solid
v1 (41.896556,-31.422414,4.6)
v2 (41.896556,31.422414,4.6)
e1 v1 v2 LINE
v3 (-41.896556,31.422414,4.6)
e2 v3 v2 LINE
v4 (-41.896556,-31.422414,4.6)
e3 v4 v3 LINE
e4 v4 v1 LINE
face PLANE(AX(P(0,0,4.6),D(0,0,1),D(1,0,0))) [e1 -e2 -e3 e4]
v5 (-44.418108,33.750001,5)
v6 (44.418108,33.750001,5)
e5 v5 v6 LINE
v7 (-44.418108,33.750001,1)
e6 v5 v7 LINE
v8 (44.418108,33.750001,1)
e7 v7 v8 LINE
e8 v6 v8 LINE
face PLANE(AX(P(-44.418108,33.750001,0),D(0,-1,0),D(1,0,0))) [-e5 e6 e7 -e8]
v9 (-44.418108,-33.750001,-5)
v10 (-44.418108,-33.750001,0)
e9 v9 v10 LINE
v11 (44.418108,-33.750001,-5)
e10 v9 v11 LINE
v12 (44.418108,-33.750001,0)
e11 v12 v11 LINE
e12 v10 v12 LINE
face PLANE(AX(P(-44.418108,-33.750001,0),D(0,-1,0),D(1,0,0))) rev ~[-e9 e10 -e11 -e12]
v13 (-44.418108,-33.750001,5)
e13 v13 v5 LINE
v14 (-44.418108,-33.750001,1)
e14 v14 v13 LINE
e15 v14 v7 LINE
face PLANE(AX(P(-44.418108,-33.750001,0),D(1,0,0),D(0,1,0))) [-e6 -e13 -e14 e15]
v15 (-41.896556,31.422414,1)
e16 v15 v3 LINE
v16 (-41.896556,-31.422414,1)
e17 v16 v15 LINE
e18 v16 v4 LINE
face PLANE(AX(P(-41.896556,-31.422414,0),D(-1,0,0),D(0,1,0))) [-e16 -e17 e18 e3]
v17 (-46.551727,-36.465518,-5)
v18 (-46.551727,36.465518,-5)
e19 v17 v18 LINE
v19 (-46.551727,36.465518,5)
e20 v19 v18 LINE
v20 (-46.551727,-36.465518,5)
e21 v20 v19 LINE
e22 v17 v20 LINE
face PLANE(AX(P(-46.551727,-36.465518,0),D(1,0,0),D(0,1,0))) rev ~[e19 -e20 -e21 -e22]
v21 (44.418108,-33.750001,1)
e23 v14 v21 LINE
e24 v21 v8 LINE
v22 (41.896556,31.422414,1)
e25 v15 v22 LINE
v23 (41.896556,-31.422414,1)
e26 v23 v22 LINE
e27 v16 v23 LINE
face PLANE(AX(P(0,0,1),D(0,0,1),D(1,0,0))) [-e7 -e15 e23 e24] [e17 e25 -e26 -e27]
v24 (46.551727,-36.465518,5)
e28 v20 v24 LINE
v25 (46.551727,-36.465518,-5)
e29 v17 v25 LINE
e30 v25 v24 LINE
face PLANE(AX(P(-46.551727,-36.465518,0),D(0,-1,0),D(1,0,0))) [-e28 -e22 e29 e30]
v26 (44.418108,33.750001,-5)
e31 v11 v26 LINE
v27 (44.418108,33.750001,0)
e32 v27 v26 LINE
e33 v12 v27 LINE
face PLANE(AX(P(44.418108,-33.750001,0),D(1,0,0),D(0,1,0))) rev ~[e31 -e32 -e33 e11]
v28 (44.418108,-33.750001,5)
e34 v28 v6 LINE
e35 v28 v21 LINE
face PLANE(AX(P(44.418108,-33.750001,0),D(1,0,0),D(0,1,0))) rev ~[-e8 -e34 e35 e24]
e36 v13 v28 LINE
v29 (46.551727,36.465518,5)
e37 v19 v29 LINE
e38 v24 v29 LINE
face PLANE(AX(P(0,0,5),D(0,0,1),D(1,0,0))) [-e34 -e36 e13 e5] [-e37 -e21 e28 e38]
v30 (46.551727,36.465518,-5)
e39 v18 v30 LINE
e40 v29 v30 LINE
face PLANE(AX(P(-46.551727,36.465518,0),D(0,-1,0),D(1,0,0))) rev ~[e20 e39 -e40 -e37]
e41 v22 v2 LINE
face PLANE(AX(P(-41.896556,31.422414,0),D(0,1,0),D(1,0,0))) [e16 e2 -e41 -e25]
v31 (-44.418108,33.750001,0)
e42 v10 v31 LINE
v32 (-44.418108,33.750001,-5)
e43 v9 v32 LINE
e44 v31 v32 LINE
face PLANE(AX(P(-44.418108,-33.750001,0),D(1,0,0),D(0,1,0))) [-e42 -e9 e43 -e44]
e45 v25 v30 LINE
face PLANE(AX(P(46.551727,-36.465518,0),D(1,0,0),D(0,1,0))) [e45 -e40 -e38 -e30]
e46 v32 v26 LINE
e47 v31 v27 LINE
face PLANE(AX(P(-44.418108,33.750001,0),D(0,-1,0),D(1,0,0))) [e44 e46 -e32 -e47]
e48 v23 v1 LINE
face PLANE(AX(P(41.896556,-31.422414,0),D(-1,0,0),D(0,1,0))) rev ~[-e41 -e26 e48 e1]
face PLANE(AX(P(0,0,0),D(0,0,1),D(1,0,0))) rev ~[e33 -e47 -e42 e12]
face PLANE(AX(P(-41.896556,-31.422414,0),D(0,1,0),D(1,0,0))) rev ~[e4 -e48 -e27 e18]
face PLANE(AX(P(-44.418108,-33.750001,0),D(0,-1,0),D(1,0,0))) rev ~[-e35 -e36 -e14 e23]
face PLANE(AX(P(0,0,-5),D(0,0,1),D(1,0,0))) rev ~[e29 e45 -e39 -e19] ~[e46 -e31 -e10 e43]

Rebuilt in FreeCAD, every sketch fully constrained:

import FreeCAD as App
import Part
import Sketcher
from FreeCAD import Vector


def add_polygon(sketch, points):
    """Adds a closed chain of lines whose ends are joined by coincident constraints."""
    first, n = sketch.GeometryCount, len(points)
    for a, b in zip(points, points[1:] + points[:1]):
        sketch.addGeometry(Part.LineSegment(App.Vector(*a, 0), App.Vector(*b, 0)), False)
    for i in range(n):
        sketch.addConstraint(Sketcher.Constraint("Coincident", first + i, 2, first + (i + 1) % n, 1))

doc = App.newDocument("Part")
params = doc.addObject("Spreadsheet::Sheet", "Params")
for row, (alias, value) in enumerate([
    ("sketch1_height", "67.500002 mm"),
    ("pad1_length", "10 mm"),
    ("sketch2_height", "67.500002 mm"),
    ("pad2_length", "1 mm"),
    ("pad3_length", "4.6 mm"),
], start=1):
    params.set(f"A{row}", alias)
    params.set(f"B{row}", "=" + value)
    params.setAlias(f"B{row}", alias)

body = doc.addObject("PartDesign::Body", "Body")

# Sketch on XY plane
sketch1 = body.newObject("Sketcher::SketchObject", "Sketch")
sketch1.AttachmentSupport = (doc.getObject("XY_Plane"), [""])
sketch1.MapMode = "FlatFace"
add_polygon(sketch1, [(-47, 36), (-47, -36), (47, -36), (47, 36)])  # lines 0-3
add_polygon(sketch1, [(44, -34), (-44, -34), (-44, 34), (44, 34)])  # lines 4-7
sketch1.addConstraint([
    Sketcher.Constraint("Vertical", 0),
    Sketcher.Constraint("Horizontal", 1),
    Sketcher.Constraint("Vertical", 2),
    Sketcher.Constraint("Horizontal", 3),
    Sketcher.Constraint("Horizontal", 4),
    Sketcher.Constraint("Vertical", 5),
    Sketcher.Constraint("Horizontal", 6),
    Sketcher.Constraint("Vertical", 7),
    Sketcher.Constraint("Symmetric", 0, 2, 2, 2, -1, 1),
    Sketcher.Constraint("Symmetric", 4, 2, 6, 2, -1, 1),
    Sketcher.Constraint("DistanceY", 5, 1, 5, 2, 67.500002),
    Sketcher.Constraint("DistanceX", 1, 1, 1, 2, 93.103454),
    Sketcher.Constraint("DistanceX", 4, 2, 4, 1, 88.836216),
    Sketcher.Constraint("DistanceY", 0, 2, 0, 1, 72.931036),
])
sketch1.setExpression("Constraints[18]", "Params.sketch1_height")
pad1 = body.newObject("PartDesign::Pad", "Pad")
pad1.Profile = sketch1
pad1.setExpression("Length", "Params.pad1_length")
pad1.Midplane = True

# Sketch on XY plane
sketch2 = body.newObject("Sketcher::SketchObject", "Sketch001")
sketch2.AttachmentSupport = (doc.getObject("XY_Plane"), [""])
sketch2.MapMode = "FlatFace"
add_polygon(sketch2, [(-44, 34), (-44, -34), (44, -34), (44, 34)])  # lines 0-3
add_polygon(sketch2, [(42, -31), (-42, -31), (-42, 31), (42, 31)])  # lines 4-7
sketch2.addConstraint([
    Sketcher.Constraint("Vertical", 0),
    Sketcher.Constraint("Horizontal", 1),
    Sketcher.Constraint("Vertical", 2),
    Sketcher.Constraint("Horizontal", 3),
    Sketcher.Constraint("Horizontal", 4),
    Sketcher.Constraint("Vertical", 5),
    Sketcher.Constraint("Horizontal", 6),
    Sketcher.Constraint("Vertical", 7),
    Sketcher.Constraint("Symmetric", 0, 2, 2, 2, -1, 1),
    Sketcher.Constraint("Symmetric", 4, 2, 6, 2, -1, 1),
    Sketcher.Constraint("DistanceY", 0, 2, 0, 1, 67.500002),
    Sketcher.Constraint("DistanceX", 4, 2, 4, 1, 83.793112),
    Sketcher.Constraint("DistanceX", 1, 1, 1, 2, 88.836216),
    Sketcher.Constraint("DistanceY", 5, 1, 5, 2, 62.844828),
])
sketch2.setExpression("Constraints[18]", "Params.sketch2_height")
pad2 = body.newObject("PartDesign::Pad", "Pad001")
pad2.Profile = sketch2
pad2.setExpression("Length", "Params.pad2_length")

# Sketch on XY plane
sketch3 = body.newObject("Sketcher::SketchObject", "Sketch002")
sketch3.AttachmentSupport = (doc.getObject("XY_Plane"), [""])
sketch3.MapMode = "FlatFace"
add_polygon(sketch3, [(-42, 31), (-42, -31), (42, -31), (42, 31)])  # lines 0-3
sketch3.addConstraint([
    Sketcher.Constraint("Vertical", 0),
    Sketcher.Constraint("Horizontal", 1),
    Sketcher.Constraint("Vertical", 2),
    Sketcher.Constraint("Horizontal", 3),
    Sketcher.Constraint("Symmetric", 0, 2, 2, 2, -1, 1),
    Sketcher.Constraint("DistanceX", 1, 1, 1, 2, 83.793112),
    Sketcher.Constraint("DistanceY", 0, 2, 0, 1, 62.844828),
])
pad3 = body.newObject("PartDesign::Pad", "Pad002")
pad3.Profile = sketch3
pad3.setExpression("Length", "Params.pad3_length")

doc.recompute()
